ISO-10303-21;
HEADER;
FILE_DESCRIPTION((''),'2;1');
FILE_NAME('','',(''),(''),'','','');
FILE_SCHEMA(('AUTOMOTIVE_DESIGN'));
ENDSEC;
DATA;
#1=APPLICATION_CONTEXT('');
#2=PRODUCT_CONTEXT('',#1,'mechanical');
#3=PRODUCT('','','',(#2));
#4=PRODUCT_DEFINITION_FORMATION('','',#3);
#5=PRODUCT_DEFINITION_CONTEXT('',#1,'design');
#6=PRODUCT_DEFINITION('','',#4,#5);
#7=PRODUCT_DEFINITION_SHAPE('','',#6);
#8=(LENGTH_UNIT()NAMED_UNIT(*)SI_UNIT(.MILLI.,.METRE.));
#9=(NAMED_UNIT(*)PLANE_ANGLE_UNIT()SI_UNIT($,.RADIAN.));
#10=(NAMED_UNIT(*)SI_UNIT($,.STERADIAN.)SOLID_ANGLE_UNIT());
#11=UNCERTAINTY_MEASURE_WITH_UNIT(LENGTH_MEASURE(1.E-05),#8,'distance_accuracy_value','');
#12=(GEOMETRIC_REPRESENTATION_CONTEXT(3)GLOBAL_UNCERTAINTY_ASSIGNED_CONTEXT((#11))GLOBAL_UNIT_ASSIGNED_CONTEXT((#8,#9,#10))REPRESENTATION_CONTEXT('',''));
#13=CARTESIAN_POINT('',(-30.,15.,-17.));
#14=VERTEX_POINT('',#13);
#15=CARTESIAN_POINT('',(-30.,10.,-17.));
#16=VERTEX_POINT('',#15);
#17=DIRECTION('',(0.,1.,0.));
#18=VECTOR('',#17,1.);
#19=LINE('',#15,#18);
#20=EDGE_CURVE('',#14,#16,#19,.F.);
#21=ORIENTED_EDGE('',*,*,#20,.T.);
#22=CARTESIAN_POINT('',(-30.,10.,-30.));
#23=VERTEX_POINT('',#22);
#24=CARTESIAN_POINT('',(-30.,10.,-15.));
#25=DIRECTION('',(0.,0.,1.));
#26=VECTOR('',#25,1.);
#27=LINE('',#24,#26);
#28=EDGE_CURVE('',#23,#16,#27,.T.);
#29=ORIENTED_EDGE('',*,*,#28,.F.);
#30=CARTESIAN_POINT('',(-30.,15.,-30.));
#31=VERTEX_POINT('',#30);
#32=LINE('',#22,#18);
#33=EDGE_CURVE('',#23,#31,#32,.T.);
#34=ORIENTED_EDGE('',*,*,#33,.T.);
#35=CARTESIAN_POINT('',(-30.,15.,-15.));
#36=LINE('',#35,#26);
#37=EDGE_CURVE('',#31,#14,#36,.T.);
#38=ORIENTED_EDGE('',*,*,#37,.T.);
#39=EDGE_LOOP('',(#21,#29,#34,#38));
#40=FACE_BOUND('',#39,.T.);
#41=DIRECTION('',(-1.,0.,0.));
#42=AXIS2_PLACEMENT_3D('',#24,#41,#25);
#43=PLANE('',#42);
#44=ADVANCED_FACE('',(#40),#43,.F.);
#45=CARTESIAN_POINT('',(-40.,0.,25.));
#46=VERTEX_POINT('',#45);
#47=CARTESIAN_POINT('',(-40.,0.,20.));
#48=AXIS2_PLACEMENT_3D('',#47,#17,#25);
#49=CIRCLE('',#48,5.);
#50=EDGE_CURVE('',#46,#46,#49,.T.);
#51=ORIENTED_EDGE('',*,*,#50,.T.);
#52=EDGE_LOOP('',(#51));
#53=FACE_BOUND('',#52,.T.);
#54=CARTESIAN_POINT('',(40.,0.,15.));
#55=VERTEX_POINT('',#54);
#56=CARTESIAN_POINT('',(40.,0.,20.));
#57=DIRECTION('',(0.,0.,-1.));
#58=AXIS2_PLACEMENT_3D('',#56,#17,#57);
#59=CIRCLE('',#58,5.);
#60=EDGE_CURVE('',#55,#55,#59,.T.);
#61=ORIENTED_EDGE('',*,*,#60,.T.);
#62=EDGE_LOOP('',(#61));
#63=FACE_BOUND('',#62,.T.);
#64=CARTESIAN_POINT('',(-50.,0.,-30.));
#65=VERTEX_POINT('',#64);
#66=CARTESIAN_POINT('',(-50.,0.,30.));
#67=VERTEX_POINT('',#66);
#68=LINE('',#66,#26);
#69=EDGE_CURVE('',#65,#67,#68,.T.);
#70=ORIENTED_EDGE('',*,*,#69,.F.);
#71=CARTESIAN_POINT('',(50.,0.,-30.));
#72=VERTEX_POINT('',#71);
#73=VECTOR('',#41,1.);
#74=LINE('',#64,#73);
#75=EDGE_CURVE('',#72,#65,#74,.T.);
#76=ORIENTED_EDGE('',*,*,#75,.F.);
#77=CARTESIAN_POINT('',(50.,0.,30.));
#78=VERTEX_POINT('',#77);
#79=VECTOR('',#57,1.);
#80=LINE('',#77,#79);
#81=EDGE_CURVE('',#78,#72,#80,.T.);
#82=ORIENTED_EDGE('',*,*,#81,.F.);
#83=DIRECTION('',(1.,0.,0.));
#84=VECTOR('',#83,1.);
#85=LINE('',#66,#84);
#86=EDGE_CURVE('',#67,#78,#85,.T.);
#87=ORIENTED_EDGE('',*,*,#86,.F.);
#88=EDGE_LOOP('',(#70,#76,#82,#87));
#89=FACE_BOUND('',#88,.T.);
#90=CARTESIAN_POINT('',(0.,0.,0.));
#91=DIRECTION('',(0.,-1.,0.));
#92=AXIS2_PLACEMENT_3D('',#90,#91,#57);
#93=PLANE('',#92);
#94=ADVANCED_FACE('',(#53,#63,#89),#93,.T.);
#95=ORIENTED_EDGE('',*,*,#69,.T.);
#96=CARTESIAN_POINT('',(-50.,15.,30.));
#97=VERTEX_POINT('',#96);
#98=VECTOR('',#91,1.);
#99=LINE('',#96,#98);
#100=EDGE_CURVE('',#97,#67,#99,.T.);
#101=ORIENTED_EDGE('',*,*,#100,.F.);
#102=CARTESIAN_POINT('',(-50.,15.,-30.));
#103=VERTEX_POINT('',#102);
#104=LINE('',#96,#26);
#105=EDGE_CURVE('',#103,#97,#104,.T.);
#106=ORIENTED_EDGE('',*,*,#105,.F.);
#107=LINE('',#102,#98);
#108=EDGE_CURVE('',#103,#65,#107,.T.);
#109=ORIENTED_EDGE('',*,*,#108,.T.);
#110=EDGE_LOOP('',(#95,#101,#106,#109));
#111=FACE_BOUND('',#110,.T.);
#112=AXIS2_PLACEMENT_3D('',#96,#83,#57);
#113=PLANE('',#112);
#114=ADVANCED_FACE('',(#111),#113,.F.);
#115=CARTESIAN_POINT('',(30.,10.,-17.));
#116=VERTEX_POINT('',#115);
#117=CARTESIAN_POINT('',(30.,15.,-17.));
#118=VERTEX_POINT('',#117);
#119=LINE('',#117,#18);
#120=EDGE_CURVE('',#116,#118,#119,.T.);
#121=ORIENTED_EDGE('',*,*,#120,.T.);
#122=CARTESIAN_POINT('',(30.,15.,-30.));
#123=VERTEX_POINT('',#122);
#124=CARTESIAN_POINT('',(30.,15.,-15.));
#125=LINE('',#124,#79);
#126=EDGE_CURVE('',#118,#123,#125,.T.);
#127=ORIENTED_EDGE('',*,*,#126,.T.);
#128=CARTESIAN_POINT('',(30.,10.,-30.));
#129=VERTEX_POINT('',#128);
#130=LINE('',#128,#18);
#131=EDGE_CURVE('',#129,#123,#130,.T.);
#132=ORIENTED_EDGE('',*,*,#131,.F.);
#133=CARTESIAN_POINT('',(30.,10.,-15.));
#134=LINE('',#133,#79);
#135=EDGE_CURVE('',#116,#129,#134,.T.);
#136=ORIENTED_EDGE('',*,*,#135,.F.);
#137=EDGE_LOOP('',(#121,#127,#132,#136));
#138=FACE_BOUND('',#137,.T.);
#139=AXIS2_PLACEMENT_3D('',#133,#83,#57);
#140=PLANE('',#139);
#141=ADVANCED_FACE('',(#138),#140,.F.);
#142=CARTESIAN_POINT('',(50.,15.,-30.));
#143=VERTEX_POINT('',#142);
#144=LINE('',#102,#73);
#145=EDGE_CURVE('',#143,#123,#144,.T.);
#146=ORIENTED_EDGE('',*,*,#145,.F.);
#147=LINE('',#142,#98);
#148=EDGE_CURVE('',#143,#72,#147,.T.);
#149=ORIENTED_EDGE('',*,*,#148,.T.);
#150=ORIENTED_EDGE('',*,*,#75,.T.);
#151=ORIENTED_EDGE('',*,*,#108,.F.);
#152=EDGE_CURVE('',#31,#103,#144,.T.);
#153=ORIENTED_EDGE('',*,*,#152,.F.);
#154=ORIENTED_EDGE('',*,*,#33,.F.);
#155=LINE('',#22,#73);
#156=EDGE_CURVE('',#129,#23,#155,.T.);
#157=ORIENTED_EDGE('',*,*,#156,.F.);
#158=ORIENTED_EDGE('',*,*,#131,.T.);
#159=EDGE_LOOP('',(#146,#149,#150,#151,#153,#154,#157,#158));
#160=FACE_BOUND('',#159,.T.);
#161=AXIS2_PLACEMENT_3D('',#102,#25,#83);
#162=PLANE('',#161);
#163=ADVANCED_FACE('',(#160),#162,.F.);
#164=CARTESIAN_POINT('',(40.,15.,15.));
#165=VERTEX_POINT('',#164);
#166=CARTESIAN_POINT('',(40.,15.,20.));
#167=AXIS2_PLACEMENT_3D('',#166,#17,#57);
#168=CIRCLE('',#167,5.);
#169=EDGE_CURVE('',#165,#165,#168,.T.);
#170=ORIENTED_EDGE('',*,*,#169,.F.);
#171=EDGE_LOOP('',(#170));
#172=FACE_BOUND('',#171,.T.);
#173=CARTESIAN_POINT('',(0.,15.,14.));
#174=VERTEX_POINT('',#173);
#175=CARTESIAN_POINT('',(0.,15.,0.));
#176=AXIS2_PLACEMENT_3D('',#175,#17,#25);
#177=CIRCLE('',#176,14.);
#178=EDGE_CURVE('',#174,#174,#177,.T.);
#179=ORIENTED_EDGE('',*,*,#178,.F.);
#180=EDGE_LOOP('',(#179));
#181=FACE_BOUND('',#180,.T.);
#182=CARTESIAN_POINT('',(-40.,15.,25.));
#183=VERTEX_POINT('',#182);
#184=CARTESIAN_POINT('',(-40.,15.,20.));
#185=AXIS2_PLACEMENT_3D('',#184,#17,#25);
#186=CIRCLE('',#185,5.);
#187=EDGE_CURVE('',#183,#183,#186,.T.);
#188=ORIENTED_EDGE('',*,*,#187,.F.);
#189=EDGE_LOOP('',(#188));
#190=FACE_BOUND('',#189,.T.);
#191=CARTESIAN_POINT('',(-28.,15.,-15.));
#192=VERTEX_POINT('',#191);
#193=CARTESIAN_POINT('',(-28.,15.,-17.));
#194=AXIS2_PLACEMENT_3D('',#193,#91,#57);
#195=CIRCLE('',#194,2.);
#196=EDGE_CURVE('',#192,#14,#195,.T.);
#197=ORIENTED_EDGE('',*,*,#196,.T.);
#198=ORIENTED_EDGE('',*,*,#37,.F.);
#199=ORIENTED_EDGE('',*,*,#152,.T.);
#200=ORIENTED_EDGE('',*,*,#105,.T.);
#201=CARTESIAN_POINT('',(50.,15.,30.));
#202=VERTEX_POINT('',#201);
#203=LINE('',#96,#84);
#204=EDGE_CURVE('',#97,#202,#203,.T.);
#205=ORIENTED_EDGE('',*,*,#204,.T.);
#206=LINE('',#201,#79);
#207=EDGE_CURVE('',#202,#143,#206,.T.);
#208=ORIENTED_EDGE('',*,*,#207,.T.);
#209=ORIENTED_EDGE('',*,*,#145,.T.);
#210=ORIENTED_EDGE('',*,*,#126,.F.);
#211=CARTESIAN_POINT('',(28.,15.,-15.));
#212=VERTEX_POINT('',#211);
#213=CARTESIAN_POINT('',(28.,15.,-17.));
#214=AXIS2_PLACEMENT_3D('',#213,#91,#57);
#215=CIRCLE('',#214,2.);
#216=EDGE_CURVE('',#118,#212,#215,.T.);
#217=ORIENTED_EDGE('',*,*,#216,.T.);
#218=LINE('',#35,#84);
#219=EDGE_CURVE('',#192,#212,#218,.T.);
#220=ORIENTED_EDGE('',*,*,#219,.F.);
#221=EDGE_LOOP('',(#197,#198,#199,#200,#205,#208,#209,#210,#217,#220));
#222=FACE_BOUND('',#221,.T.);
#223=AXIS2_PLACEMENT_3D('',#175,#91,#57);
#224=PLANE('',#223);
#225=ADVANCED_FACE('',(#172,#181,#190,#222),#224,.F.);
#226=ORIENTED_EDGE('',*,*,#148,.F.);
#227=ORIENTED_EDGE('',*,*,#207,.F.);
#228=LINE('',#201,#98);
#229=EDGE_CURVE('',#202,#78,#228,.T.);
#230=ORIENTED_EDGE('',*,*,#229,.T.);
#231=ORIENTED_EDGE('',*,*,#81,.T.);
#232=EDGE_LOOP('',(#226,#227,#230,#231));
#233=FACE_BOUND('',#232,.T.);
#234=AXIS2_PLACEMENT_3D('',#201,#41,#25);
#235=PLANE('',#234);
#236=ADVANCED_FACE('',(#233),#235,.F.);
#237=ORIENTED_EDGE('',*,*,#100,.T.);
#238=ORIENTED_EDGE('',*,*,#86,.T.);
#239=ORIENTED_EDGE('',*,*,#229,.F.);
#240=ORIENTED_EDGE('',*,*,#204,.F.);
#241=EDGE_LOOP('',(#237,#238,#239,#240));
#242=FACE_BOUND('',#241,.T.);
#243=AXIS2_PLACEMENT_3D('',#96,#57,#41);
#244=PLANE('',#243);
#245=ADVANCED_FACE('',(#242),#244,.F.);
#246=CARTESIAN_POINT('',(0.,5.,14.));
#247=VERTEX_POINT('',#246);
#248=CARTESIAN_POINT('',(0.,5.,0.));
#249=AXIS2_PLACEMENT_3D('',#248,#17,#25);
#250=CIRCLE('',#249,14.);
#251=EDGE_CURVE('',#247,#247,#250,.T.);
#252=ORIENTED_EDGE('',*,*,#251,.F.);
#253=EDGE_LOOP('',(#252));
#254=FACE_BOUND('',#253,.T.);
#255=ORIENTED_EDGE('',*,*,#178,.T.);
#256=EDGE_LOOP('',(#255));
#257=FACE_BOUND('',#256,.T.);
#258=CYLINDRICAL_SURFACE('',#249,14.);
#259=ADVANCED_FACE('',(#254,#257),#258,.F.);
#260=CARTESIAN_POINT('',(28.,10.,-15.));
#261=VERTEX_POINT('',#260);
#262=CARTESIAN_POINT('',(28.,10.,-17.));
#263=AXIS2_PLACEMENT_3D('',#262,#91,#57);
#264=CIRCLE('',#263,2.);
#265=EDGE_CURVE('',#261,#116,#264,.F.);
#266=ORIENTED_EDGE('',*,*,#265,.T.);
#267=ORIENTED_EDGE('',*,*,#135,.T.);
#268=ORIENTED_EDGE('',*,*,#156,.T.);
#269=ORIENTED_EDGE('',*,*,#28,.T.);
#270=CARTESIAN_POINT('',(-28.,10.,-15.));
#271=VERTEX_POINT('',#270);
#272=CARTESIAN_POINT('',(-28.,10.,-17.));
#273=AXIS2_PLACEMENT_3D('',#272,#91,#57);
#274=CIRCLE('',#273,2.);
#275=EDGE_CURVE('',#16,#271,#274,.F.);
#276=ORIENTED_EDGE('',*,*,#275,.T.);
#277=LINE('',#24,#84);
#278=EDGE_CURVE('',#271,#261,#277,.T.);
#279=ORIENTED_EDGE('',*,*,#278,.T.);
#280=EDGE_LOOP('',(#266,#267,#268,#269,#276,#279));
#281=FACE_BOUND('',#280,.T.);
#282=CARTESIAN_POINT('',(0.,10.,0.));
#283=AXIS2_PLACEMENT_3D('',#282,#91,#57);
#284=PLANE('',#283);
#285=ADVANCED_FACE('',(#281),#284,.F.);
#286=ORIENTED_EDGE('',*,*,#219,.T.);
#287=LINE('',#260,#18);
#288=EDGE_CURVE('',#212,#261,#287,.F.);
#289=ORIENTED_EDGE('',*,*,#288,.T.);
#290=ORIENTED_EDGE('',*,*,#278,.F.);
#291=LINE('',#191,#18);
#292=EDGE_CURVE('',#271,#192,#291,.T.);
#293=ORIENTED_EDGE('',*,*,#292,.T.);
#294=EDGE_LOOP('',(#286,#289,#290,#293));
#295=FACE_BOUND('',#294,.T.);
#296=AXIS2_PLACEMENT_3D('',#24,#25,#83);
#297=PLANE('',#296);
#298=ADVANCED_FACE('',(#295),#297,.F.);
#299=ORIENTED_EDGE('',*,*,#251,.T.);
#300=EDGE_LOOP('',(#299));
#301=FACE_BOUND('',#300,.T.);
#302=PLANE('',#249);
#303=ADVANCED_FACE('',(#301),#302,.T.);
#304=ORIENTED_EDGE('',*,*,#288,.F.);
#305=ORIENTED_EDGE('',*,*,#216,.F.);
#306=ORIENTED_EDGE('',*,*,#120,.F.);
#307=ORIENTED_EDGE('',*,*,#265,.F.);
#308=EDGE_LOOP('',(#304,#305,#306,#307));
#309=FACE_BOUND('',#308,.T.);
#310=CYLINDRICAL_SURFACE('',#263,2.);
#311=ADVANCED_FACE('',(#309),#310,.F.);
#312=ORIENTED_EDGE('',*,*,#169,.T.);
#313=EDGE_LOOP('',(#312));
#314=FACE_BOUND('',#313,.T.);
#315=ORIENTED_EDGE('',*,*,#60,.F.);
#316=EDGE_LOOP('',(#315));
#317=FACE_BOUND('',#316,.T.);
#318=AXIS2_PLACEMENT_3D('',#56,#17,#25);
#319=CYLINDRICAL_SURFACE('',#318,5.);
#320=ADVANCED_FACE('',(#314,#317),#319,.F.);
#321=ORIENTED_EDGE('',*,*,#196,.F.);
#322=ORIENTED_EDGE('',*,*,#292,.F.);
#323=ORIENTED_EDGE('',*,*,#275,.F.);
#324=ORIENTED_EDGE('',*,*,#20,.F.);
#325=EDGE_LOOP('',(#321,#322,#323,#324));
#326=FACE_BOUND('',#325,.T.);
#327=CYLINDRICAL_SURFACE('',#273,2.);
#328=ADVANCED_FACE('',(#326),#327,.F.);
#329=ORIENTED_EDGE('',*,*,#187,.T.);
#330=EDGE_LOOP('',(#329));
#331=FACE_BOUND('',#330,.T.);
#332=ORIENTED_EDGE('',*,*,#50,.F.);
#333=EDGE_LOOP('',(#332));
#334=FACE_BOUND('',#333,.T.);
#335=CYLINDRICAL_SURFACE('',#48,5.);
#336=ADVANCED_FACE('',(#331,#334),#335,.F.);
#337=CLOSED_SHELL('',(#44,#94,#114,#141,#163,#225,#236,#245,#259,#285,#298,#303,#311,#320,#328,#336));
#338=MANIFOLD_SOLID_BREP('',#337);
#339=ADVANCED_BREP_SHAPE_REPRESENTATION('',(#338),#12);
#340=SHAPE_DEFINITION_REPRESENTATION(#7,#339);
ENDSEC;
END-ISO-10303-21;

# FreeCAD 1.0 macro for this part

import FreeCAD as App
import Part
import Sketcher
Q = App.Units.Quantity


def edges_at(feature, points):
    """Names of the edges that pass closest to the given points."""
    edges = feature.Shape.Edges
    near = lambda p: min(range(len(edges)), key=lambda i: edges[i].distToShape(Part.Vertex(*p))[0])
    return sorted({f"Edge{near(p) + 1}" for p in points})

doc = App.newDocument("Part")
body = doc.addObject("PartDesign::Body", "Body")

# Sketch on XZ plane
sketch1 = body.newObject("Sketcher::SketchObject", "Sketch")
sketch1.AttachmentSupport = (doc.getObject("XZ_Plane"), [""])
sketch1.MapMode = "FlatFace"
sketch1.addGeometry([
    Part.LineSegment(App.Vector(-50, -30, 0), App.Vector(-50, 30, 0)),
    Part.LineSegment(App.Vector(-50, 30, 0), App.Vector(50, 30, 0)),
    Part.LineSegment(App.Vector(50, 30, 0), App.Vector(50, -30, 0)),
    Part.LineSegment(App.Vector(50, -30, 0), App.Vector(-50, -30, 0)),
], False)
sketch1.addConstraint([
    Sketcher.Constraint("Coincident", 0, 2, 1, 1),
    Sketcher.Constraint("Coincident", 1, 2, 2, 1),
    Sketcher.Constraint("Coincident", 2, 2, 3, 1),
    Sketcher.Constraint("Coincident", 3, 2, 0, 1),
    Sketcher.Constraint("Vertical", 0),
    Sketcher.Constraint("Horizontal", 1),
    Sketcher.Constraint("Vertical", 2),
    Sketcher.Constraint("Horizontal", 3),
    Sketcher.Constraint("Symmetric", 0, 2, 2, 2, -1, 1),
    Sketcher.Constraint("DistanceX", 1, 1, 1, 2, Q("100 mm")),
    Sketcher.Constraint("DistanceY", 0, 1, 0, 2, Q("60 mm")),
])
pad1 = body.newObject("PartDesign::Pad", "Pad")
pad1.Profile = sketch1
pad1.Length = 15
pad1.Reversed = True

# Sketch on XZ plane
sketch2 = body.newObject("Sketcher::SketchObject", "Sketch001")
sketch2.AttachmentSupport = (doc.getObject("XZ_Plane"), [""])
sketch2.MapMode = "FlatFace"
sketch2.AttachmentOffset = App.Placement(App.Vector(0, 0, -15), App.Rotation())
sketch2.addGeometry([
    Part.LineSegment(App.Vector(-30, -30, 0), App.Vector(-30, -15, 0)),
    Part.LineSegment(App.Vector(-30, -15, 0), App.Vector(30, -15, 0)),
    Part.LineSegment(App.Vector(30, -15, 0), App.Vector(30, -30, 0)),
    Part.LineSegment(App.Vector(30, -30, 0), App.Vector(-30, -30, 0)),
], False)
sketch2.addConstraint([
    Sketcher.Constraint("Coincident", 0, 2, 1, 1),
    Sketcher.Constraint("Coincident", 1, 2, 2, 1),
    Sketcher.Constraint("Coincident", 2, 2, 3, 1),
    Sketcher.Constraint("Coincident", 3, 2, 0, 1),
    Sketcher.Constraint("Vertical", 0),
    Sketcher.Constraint("Horizontal", 1),
    Sketcher.Constraint("Vertical", 2),
    Sketcher.Constraint("Horizontal", 3),
    Sketcher.Constraint("DistanceX", 1, 1, 1, 2, Q("60 mm")),
    Sketcher.Constraint("DistanceY", 0, 1, 0, 2, Q("15 mm")),
    Sketcher.Constraint("DistanceX", 0, 2, -1, 1, Q("30 mm")),
    Sketcher.Constraint("DistanceY", 0, 2, -1, 1, Q("15 mm")),
])
pocket1 = body.newObject("PartDesign::Pocket", "Pocket")
pocket1.Profile = sketch2
pocket1.Length = 5
pocket1.Reversed = True

# Sketch on XZ plane
sketch3 = body.newObject("Sketcher::SketchObject", "Sketch002")
sketch3.AttachmentSupport = (doc.getObject("XZ_Plane"), [""])
sketch3.MapMode = "FlatFace"
sketch3.AttachmentOffset = App.Placement(App.Vector(0, 0, -15), App.Rotation())
sketch3.addGeometry(Part.Circle(App.Vector(0, 0, 0), App.Vector(0, 0, 1), 14), False)
sketch3.addConstraint([
    Sketcher.Constraint("Coincident", 0, 3, -1, 1),
    Sketcher.Constraint("Diameter", 0, Q("28 mm")),
])
pocket2 = body.newObject("PartDesign::Pocket", "Pocket001")
pocket2.Profile = sketch3
pocket2.Length = 10
pocket2.Reversed = True

# Sketch on XZ plane
sketch4 = body.newObject("Sketcher::SketchObject", "Sketch003")
sketch4.AttachmentSupport = (doc.getObject("XZ_Plane"), [""])
sketch4.MapMode = "FlatFace"
sketch4.AttachmentOffset = App.Placement(App.Vector(0, 0, -15), App.Rotation())
sketch4.addGeometry([
    Part.Circle(App.Vector(-40, 20, 0), App.Vector(0, 0, 1), 5),
    Part.Circle(App.Vector(40, 20, 0), App.Vector(0, 0, 1), 5),
], False)
sketch4.addConstraint([
    Sketcher.Constraint("Equal", 0, 1),
    Sketcher.Constraint("Symmetric", 0, 3, 1, 3, -2),
    Sketcher.Constraint("Diameter", 0, Q("10 mm")),
    Sketcher.Constraint("DistanceX", 0, 3, -1, 1, Q("40 mm")),
    Sketcher.Constraint("DistanceY", -1, 1, 0, 3, Q("20 mm")),
])
pocket3 = body.newObject("PartDesign::Pocket", "Pocket002")
pocket3.Profile = sketch4
pocket3.Type = "ThroughAll"
pocket3.Reversed = True
doc.recompute()

fillet = body.newObject("PartDesign::Fillet", "Fillet")
fillet.Base = (pocket3, edges_at(pocket3, [(30, 12.5, -15), (-30, 12.5, -15)]))
fillet.Radius = 2

doc.recompute()
